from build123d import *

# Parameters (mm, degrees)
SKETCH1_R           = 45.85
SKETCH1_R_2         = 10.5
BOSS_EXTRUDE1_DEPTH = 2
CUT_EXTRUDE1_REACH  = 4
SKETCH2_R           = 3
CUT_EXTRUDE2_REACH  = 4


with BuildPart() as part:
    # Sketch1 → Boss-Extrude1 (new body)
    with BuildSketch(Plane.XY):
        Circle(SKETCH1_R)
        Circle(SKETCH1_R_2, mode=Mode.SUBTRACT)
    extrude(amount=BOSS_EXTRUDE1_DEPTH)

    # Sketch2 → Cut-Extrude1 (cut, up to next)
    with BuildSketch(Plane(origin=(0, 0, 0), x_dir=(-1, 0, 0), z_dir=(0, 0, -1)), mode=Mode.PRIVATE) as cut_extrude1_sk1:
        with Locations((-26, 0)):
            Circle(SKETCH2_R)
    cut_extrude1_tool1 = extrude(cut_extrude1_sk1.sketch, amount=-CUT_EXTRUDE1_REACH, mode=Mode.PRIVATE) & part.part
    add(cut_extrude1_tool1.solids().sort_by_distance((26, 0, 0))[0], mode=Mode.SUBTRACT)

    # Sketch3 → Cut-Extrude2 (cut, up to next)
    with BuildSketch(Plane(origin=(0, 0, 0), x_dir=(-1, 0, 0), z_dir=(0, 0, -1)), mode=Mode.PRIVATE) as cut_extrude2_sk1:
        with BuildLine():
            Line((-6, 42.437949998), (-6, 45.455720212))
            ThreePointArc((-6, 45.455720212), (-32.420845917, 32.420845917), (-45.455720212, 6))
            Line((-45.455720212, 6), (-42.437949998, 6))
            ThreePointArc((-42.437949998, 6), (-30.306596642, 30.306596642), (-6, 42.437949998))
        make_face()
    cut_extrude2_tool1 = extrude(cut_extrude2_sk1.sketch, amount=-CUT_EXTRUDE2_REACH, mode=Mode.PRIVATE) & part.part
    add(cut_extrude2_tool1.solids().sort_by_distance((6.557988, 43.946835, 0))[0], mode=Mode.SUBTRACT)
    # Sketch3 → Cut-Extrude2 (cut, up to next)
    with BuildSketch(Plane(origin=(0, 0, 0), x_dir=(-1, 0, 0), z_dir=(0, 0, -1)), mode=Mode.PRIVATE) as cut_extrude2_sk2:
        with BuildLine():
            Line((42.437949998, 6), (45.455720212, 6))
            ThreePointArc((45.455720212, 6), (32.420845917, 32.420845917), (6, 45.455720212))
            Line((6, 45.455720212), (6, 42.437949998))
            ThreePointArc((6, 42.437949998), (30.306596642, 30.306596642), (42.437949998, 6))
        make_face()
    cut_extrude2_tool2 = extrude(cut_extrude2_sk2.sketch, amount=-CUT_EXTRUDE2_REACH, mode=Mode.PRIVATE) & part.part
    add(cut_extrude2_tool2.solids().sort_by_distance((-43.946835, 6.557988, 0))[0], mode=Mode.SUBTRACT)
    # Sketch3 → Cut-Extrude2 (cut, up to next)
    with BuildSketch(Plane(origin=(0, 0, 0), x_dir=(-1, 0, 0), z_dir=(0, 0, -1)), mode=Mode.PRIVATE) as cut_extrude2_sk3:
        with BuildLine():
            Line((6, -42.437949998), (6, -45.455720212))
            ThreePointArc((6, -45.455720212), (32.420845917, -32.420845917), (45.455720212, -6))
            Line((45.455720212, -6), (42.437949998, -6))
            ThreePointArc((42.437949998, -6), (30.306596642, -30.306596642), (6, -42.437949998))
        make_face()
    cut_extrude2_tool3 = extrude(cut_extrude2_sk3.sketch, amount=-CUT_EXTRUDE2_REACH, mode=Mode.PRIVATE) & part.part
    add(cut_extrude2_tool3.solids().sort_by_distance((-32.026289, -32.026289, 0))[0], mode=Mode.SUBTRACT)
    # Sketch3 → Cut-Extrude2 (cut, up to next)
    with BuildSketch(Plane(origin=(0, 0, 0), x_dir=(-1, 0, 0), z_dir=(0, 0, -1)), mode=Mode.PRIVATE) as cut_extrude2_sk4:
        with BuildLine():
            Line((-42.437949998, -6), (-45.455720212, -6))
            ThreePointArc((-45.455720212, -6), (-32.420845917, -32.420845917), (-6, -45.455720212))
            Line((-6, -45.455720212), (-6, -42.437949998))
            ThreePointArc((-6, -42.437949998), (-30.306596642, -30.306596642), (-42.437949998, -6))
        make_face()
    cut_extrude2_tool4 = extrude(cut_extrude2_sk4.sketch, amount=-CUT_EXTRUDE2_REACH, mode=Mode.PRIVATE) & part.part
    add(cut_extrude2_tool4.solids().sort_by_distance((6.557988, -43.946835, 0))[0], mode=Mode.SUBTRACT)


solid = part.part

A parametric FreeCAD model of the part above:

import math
import FreeCAD as App
import Part
import Sketcher
from FreeCAD import Vector

doc = App.newDocument("Part")
body = doc.addObject("PartDesign::Body", "Body")

sketch1 = body.newObject("Sketcher::SketchObject", "Sketch")
sketch1.AttachmentSupport = (doc.getObject("XY_Plane"), [""])
sketch1.MapMode = "FlatFace"
sketch1.addGeometry([
    Part.Circle(Vector(0, 0, 0), Vector(0, 0, 1), 46),
    Part.Circle(Vector(0, 0, 0), Vector(0, 0, 1), 10),
], False)
sketch1.addConstraint([
    Sketcher.Constraint("Coincident", 0, 3, -1, 1),
    Sketcher.Constraint("Coincident", 1, 3, -1, 1),
    Sketcher.Constraint("Diameter", 1, 21.0),
    Sketcher.Constraint("Diameter", 0, 91.7),
])
pad1 = body.newObject("PartDesign::Pad", "Pad")
pad1.Profile = sketch1
pad1.Length = 2

sketch2 = body.newObject("Sketcher::SketchObject", "Sketch001")
sketch2.AttachmentSupport = (doc.getObject("XY_Plane"), [""])
sketch2.MapMode = "FlatFace"
sketch2.addGeometry(Part.Circle(Vector(26, 0, 0), Vector(0, 0, 1), 3), False)
sketch2.addConstraint([
    Sketcher.Constraint("PointOnObject", 0, 3, -1),
    Sketcher.Constraint("Diameter", 0, 6.0),
    Sketcher.Constraint("DistanceX", -1, 1, 0, 3, 26.0),
])
pocket1 = body.newObject("PartDesign::Pocket", "Pocket")
pocket1.Profile = sketch2
pocket1.Type = "UpToFirst"
pocket1.Reversed = True

sketch3 = body.newObject("Sketcher::SketchObject", "Sketch002")
sketch3.AttachmentSupport = (doc.getObject("XY_Plane"), [""])
sketch3.MapMode = "FlatFace"
sketch3.addGeometry([
    Part.LineSegment(Vector(6, 42.43795, 0), Vector(6, 45.45572, 0)),
    Part.ArcOfCircle(Part.Circle(Vector(0, 0, 0), Vector(0, 0, 1), 45.85), math.radians(7.519378), math.radians(82.480622)),
    Part.LineSegment(Vector(45.45572, 6, 0), Vector(42.43795, 6, 0)),
    Part.ArcOfCircle(Part.Circle(Vector(0, 0, 0), Vector(0, 0, 1), 42.86), math.radians(8.047306), math.radians(81.952694)),
], False)
sketch3.addConstraint([
    Sketcher.Constraint("Coincident", 0, 2, 1, 2),
    Sketcher.Constraint("Coincident", 1, 1, 2, 1),
    Sketcher.Constraint("Coincident", 2, 2, 3, 1),
    Sketcher.Constraint("Coincident", 3, 2, 0, 1),
    Sketcher.Constraint("Vertical", 0),
    Sketcher.Constraint("Horizontal", 2),
    Sketcher.Constraint("Coincident", 1, 3, -1, 1),
    Sketcher.Constraint("Coincident", 3, 3, -1, 1),
    Sketcher.Constraint("Equal", 2, 0),
    Sketcher.Constraint("Radius", 1, 45.85),
    Sketcher.Constraint("Radius", 3, 42.86),
    Sketcher.Constraint("DistanceX", -1, 1, 0, 2, 6.0),
])
pocket2 = body.newObject("PartDesign::Pocket", "Pocket001")
pocket2.Profile = sketch3
pocket2.Type = "UpToFirst"
pocket2.Reversed = True

sketch4 = body.newObject("Sketcher::SketchObject", "Sketch003")
sketch4.AttachmentSupport = (doc.getObject("XY_Plane"), [""])
sketch4.MapMode = "FlatFace"
sketch4.addGeometry([
    Part.LineSegment(Vector(-42.43795, 6, 0), Vector(-45.45572, 6, 0)),
    Part.ArcOfCircle(Part.Circle(Vector(0, 0, 0), Vector(0, 0, 1), 45.85), math.radians(97.519378), math.radians(172.480622)),
    Part.LineSegment(Vector(-6, 45.45572, 0), Vector(-6, 42.43795, 0)),
    Part.ArcOfCircle(Part.Circle(Vector(0, 0, 0), Vector(0, 0, 1), 42.86), math.radians(98.047306), math.radians(171.952694)),
], False)
sketch4.addConstraint([
    Sketcher.Constraint("Coincident", 0, 2, 1, 2),
    Sketcher.Constraint("Coincident", 1, 1, 2, 1),
    Sketcher.Constraint("Coincident", 2, 2, 3, 1),
    Sketcher.Constraint("Coincident", 3, 2, 0, 1),
    Sketcher.Constraint("Horizontal", 0),
    Sketcher.Constraint("Vertical", 2),
    Sketcher.Constraint("Coincident", 1, 3, -1, 1),
    Sketcher.Constraint("Coincident", 3, 3, -1, 1),
    Sketcher.Constraint("Equal", 0, 2),
    Sketcher.Constraint("Radius", 1, 45.85),
    Sketcher.Constraint("Radius", 3, 42.86),
    Sketcher.Constraint("DistanceY", -1, 1, 0, 2, 6.0),
])
pocket3 = body.newObject("PartDesign::Pocket", "Pocket002")
pocket3.Profile = sketch4
pocket3.Type = "UpToFirst"
pocket3.Reversed = True

sketch5 = body.newObject("Sketcher::SketchObject", "Sketch004")
sketch5.AttachmentSupport = (doc.getObject("XY_Plane"), [""])
sketch5.MapMode = "FlatFace"
sketch5.addGeometry([
    Part.LineSegment(Vector(-6, -42.43795, 0), Vector(-6, -45.45572, 0)),
    Part.ArcOfCircle(Part.Circle(Vector(0, 0, 0), Vector(0, 0, 1), 45.85), math.radians(-172.480622), math.radians(-97.519378)),
    Part.LineSegment(Vector(-45.45572, -6, 0), Vector(-42.43795, -6, 0)),
    Part.ArcOfCircle(Part.Circle(Vector(0, 0, 0), Vector(0, 0, 1), 42.86), math.radians(-171.952694), math.radians(-98.047306)),
], False)
sketch5.addConstraint([
    Sketcher.Constraint("Coincident", 0, 2, 1, 2),
    Sketcher.Constraint("Coincident", 1, 1, 2, 1),
    Sketcher.Constraint("Coincident", 2, 2, 3, 1),
    Sketcher.Constraint("Coincident", 3, 2, 0, 1),
    Sketcher.Constraint("Vertical", 0),
    Sketcher.Constraint("Horizontal", 2),
    Sketcher.Constraint("Coincident", 1, 3, -1, 1),
    Sketcher.Constraint("Coincident", 3, 3, -1, 1),
    Sketcher.Constraint("Equal", 2, 0),
    Sketcher.Constraint("Radius", 1, 45.85),
    Sketcher.Constraint("Radius", 3, 42.86),
    Sketcher.Constraint("DistanceX", 0, 2, -1, 1, 6.0),
])
pocket4 = body.newObject("PartDesign::Pocket", "Pocket003")
pocket4.Profile = sketch5
pocket4.Type = "UpToFirst"
pocket4.Reversed = True

sketch6 = body.newObject("Sketcher::SketchObject", "Sketch005")
sketch6.AttachmentSupport = (doc.getObject("XY_Plane"), [""])
sketch6.MapMode = "FlatFace"
sketch6.addGeometry([
    Part.LineSegment(Vector(42.43795, -6, 0), Vector(45.45572, -6, 0)),
    Part.ArcOfCircle(Part.Circle(Vector(0, 0, 0), Vector(0, 0, 1), 45.85), math.radians(-82.480622), math.radians(-7.519378)),
    Part.LineSegment(Vector(6, -45.45572, 0), Vector(6, -42.43795, 0)),
    Part.ArcOfCircle(Part.Circle(Vector(0, 0, 0), Vector(0, 0, 1), 42.86), math.radians(-81.952694), math.radians(-8.047306)),
], False)
sketch6.addConstraint([
    Sketcher.Constraint("Coincident", 0, 2, 1, 2),
    Sketcher.Constraint("Coincident", 1, 1, 2, 1),
    Sketcher.Constraint("Coincident", 2, 2, 3, 1),
    Sketcher.Constraint("Coincident", 3, 2, 0, 1),
    Sketcher.Constraint("Horizontal", 0),
    Sketcher.Constraint("Vertical", 2),
    Sketcher.Constraint("Coincident", 1, 3, -1, 1),
    Sketcher.Constraint("Coincident", 3, 3, -1, 1),
    Sketcher.Constraint("Equal", 0, 2),
    Sketcher.Constraint("Radius", 1, 45.85),
    Sketcher.Constraint("Radius", 3, 42.86),
    Sketcher.Constraint("DistanceY", 0, 2, -1, 1, 6.0),
])
pocket5 = body.newObject("PartDesign::Pocket", "Pocket004")
pocket5.Profile = sketch6
pocket5.Type = "UpToFirst"
pocket5.Reversed = True

doc.recompute()
